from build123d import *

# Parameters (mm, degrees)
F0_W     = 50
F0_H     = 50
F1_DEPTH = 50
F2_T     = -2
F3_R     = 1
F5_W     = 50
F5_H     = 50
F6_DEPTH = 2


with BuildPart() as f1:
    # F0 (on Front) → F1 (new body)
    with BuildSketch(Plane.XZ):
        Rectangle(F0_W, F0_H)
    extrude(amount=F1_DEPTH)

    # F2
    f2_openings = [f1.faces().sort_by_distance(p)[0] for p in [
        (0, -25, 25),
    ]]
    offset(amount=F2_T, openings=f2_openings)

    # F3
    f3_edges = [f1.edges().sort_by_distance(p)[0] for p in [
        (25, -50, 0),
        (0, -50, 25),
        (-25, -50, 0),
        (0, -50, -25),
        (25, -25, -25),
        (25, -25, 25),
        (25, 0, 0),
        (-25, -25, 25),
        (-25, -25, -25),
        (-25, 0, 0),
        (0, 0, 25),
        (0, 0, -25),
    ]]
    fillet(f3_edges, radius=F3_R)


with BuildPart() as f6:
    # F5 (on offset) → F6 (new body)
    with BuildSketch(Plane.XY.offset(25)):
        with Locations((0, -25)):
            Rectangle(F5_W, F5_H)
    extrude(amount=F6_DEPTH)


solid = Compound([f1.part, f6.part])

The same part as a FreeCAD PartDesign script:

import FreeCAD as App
import Part
import Sketcher

V = App.Vector
Q = App.Units.Quantity


def edges_at(feature, points):
    """Names of the edges that pass closest to the given points."""
    edges = feature.Shape.Edges
    near = lambda p: min(range(len(edges)), key=lambda i: edges[i].distToShape(Part.Vertex(*p))[0])
    return sorted({f"Edge{near(p) + 1}" for p in points})


def faces_at(feature, points):
    """Names of the faces that lie closest to the given points."""
    faces = feature.Shape.Faces
    near = lambda p: min(range(len(faces)), key=lambda i: faces[i].distToShape(Part.Vertex(*p))[0])
    return sorted({f"Face{near(p) + 1}" for p in points})

doc = App.newDocument("Part")
params = doc.addObject("Spreadsheet::Sheet", "Params")
for row, (alias, value) in enumerate([
    ("sketch1_width", "50 mm"),
    ("pad1_length", "50 mm"),
    ("thickness_wall", "2 mm"),
    ("fillet_radius", "1 mm"),
    ("sketch2_width", "50 mm"),
    ("pad2_length", "2 mm"),
], start=1):
    params.set(f"A{row}", alias)
    params.set(f"B{row}", "=" + value)
    params.setAlias(f"B{row}", alias)

body = doc.addObject("PartDesign::Body", "Body")

# Sketch on XZ plane
sketch1 = doc.addObject("Sketcher::SketchObject", "Sketch")
body.addObject(sketch1)
sketch1.AttachmentSupport = (doc.XZ_Plane, [""])
sketch1.MapMode = "FlatFace"
sketch1.addGeometry(Part.LineSegment(V(-25, 25, 0), V(-25, -25, 0)), False)
sketch1.addGeometry(Part.LineSegment(V(-25, -25, 0), V(25, -25, 0)), False)
sketch1.addGeometry(Part.LineSegment(V(25, -25, 0), V(25, 25, 0)), False)
sketch1.addGeometry(Part.LineSegment(V(25, 25, 0), V(-25, 25, 0)), False)
sketch1.addConstraint(Sketcher.Constraint("Coincident", 0, 2, 1, 1))
sketch1.addConstraint(Sketcher.Constraint("Coincident", 1, 2, 2, 1))
sketch1.addConstraint(Sketcher.Constraint("Coincident", 2, 2, 3, 1))
sketch1.addConstraint(Sketcher.Constraint("Coincident", 3, 2, 0, 1))
sketch1.addConstraint(Sketcher.Constraint("Vertical", 0))
sketch1.addConstraint(Sketcher.Constraint("Horizontal", 1))
sketch1.addConstraint(Sketcher.Constraint("Vertical", 2))
sketch1.addConstraint(Sketcher.Constraint("Horizontal", 3))
sketch1.addConstraint(Sketcher.Constraint("Symmetric", 0, 2, 2, 2, -1, 1))
sketch1.addConstraint(Sketcher.Constraint("Equal", 3, 0))
sketch1.addConstraint(Sketcher.Constraint("DistanceX", 1, 1, 1, 2, Q("50 mm")))
sketch1.setExpression("Constraints[10]", "Params.sketch1_width")
pad1 = doc.addObject("PartDesign::Pad", "Pad")
body.addObject(pad1)
pad1.Profile = sketch1
pad1.setExpression("Length", "Params.pad1_length")
doc.recompute()

thickness = doc.addObject("PartDesign::Thickness", "Thickness")
body.addObject(thickness)
thickness.Base = (pad1, faces_at(pad1, [(0, -25, 25)]))
thickness.setExpression("Value", "Params.thickness_wall")
thickness.Reversed = True
thickness.Join = "Arc"
doc.recompute()

fillet = doc.addObject("PartDesign::Fillet", "Fillet")
body.addObject(fillet)
fillet.Base = (thickness, edges_at(thickness, [
    (25, -50, 0),
    (0, -50, 25),
    (-25, -50, 0),
    (0, -50, -25),
    (25, -25, -25),
    (25, -25, 25),
    (25, 0, 0),
    (-25, -25, 25),
    (-25, -25, -25),
    (-25, 0, 0),
    (0, 0, 25),
    (0, 0, -25),
]))
fillet.setExpression("Radius", "Params.fillet_radius")
body2 = doc.addObject("PartDesign::Body", "Body001")

# Sketch on XY plane
sketch2 = doc.addObject("Sketcher::SketchObject", "Sketch001")
body2.addObject(sketch2)
sketch2.AttachmentSupport = (doc.getObject("XY_Plane001"), [""])
sketch2.MapMode = "FlatFace"
sketch2.AttachmentOffset = App.Placement(V(0, 0, 25), App.Rotation())
sketch2.addGeometry(Part.LineSegment(V(-25, 0, 0), V(-25, -50, 0)), False)
sketch2.addGeometry(Part.LineSegment(V(-25, -50, 0), V(25, -50, 0)), False)
sketch2.addGeometry(Part.LineSegment(V(25, -50, 0), V(25, 0, 0)), False)
sketch2.addGeometry(Part.LineSegment(V(25, 0, 0), V(-25, 0, 0)), False)
sketch2.addConstraint(Sketcher.Constraint("Coincident", 0, 2, 1, 1))
sketch2.addConstraint(Sketcher.Constraint("Coincident", 1, 2, 2, 1))
sketch2.addConstraint(Sketcher.Constraint("Coincident", 2, 2, 3, 1))
sketch2.addConstraint(Sketcher.Constraint("Coincident", 3, 2, 0, 1))
sketch2.addConstraint(Sketcher.Constraint("Vertical", 0))
sketch2.addConstraint(Sketcher.Constraint("Horizontal", 1))
sketch2.addConstraint(Sketcher.Constraint("Vertical", 2))
sketch2.addConstraint(Sketcher.Constraint("Horizontal", 3))
sketch2.addConstraint(Sketcher.Constraint("Symmetric", 2, 2, 3, 2, -1, 1))
sketch2.addConstraint(Sketcher.Constraint("Equal", 3, 0))
sketch2.addConstraint(Sketcher.Constraint("DistanceX", 1, 1, 1, 2, Q("50 mm")))
sketch2.setExpression("Constraints[10]", "Params.sketch2_width")
pad2 = doc.addObject("PartDesign::Pad", "Pad001")
body2.addObject(pad2)
pad2.Profile = sketch2
pad2.setExpression("Length", "Params.pad2_length")

doc.recompute()
